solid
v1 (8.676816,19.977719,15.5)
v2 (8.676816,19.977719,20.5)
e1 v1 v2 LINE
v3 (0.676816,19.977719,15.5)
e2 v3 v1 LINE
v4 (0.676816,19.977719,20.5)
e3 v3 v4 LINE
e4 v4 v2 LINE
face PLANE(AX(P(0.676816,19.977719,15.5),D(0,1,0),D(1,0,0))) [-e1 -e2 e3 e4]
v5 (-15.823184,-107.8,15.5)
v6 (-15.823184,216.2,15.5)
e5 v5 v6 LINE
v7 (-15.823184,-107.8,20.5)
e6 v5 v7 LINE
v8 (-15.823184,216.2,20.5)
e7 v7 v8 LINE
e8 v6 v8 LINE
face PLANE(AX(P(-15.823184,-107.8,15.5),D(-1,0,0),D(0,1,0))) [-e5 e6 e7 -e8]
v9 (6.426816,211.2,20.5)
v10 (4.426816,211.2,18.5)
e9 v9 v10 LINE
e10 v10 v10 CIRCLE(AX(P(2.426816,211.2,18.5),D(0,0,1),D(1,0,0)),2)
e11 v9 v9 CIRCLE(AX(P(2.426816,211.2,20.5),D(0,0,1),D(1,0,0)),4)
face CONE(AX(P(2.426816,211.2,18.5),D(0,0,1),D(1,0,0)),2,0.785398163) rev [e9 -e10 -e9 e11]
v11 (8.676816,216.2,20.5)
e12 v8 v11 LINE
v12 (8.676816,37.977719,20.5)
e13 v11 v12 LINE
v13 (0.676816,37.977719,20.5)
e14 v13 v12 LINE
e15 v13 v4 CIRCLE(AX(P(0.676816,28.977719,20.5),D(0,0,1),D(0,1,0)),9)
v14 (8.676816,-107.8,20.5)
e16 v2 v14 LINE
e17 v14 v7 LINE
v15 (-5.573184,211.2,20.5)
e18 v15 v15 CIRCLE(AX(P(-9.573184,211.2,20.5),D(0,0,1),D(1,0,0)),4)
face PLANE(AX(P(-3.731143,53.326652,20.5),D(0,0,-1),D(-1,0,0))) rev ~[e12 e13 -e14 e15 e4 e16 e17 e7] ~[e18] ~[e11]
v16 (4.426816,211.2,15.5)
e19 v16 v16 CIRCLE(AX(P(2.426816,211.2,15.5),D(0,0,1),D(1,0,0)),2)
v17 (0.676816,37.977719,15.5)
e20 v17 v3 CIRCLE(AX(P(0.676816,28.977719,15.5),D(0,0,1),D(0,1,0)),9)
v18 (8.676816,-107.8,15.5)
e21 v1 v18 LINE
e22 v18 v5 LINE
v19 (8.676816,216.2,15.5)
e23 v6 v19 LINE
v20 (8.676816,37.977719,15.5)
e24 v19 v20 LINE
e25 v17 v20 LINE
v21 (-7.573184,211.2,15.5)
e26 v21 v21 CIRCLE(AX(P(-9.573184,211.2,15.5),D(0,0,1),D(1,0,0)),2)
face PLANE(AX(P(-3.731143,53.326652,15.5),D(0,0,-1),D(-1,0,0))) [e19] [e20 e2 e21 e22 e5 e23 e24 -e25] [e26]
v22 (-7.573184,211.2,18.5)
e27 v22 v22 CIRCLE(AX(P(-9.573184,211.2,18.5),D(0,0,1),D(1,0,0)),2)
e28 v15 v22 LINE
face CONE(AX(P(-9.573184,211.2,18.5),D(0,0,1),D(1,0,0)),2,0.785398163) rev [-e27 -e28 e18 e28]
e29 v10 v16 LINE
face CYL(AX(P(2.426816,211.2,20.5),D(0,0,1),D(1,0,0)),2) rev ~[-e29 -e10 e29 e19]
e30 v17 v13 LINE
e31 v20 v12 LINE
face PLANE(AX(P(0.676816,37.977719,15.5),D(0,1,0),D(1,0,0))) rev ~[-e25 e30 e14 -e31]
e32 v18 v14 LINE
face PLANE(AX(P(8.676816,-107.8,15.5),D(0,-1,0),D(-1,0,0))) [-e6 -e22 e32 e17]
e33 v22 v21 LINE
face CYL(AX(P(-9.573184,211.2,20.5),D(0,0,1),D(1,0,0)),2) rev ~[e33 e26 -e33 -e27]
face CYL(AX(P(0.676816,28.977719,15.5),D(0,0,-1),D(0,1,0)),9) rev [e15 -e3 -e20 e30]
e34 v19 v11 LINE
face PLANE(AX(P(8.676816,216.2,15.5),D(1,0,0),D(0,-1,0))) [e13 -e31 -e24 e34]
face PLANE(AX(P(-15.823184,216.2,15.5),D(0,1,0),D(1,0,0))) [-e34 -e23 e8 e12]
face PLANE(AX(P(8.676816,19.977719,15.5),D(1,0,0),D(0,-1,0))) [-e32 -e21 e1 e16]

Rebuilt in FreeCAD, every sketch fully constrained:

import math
import FreeCAD as App
import Part
import Sketcher
from FreeCAD import Vector


def edges_at(feature, points):
    """Names of the edges that pass closest to the given points."""
    edges = feature.Shape.Edges
    near = lambda p: min(range(len(edges)), key=lambda i: edges[i].distToShape(Part.Vertex(*p))[0])
    return sorted({f"Edge{near(p) + 1}" for p in points})

doc = App.newDocument("Part")
params = doc.addObject("Spreadsheet::Sheet", "Params")
for row, (alias, value) in enumerate([
    ("sketch1_radius", "9 mm"),
    ("sketch1_width", "8 mm"),
    ("sketch1_height", "324 mm"),
    ("sketch1_width2", "24.5 mm"),
    ("pad1_length", "5 mm"),
    ("sketch2_diameter", "4 mm"),
    ("chamfer_size", "2 mm"),
], start=1):
    params.set(f"A{row}", alias)
    params.set(f"B{row}", "=" + value)
    params.setAlias(f"B{row}", alias)

body = doc.addObject("PartDesign::Body", "Body")

# Sketch on XY plane
sketch1 = body.newObject("Sketcher::SketchObject", "Sketch")
sketch1.AttachmentSupport = (doc.getObject("XY_Plane"), [""])
sketch1.MapMode = "FlatFace"
sketch1.addGeometry(Part.LineSegment(Vector(9, -108, 0), Vector(9, 20, 0)), False)
sketch1.addGeometry(Part.LineSegment(Vector(9, 20, 0), Vector(1, 20, 0)), False)
sketch1.addGeometry(Part.ArcOfCircle(Part.Circle(Vector(1, 29, 0), Vector(0, 0, 1), 9), math.radians(90), math.radians(270)), False)
sketch1.addGeometry(Part.LineSegment(Vector(1, 38, 0), Vector(9, 38, 0)), False)
sketch1.addGeometry(Part.LineSegment(Vector(9, 38, 0), Vector(9, 216, 0)), False)
sketch1.addGeometry(Part.LineSegment(Vector(9, 216, 0), Vector(-16, 216, 0)), False)
sketch1.addGeometry(Part.LineSegment(Vector(-16, 216, 0), Vector(-16, -108, 0)), False)
sketch1.addGeometry(Part.LineSegment(Vector(-16, -108, 0), Vector(9, -108, 0)), False)
sketch1.addConstraint(Sketcher.Constraint("Coincident", 0, 2, 1, 1))
sketch1.addConstraint(Sketcher.Constraint("Tangent", 1, 2, 2, 2))
sketch1.addConstraint(Sketcher.Constraint("Tangent", 2, 1, 3, 1))
sketch1.addConstraint(Sketcher.Constraint("Coincident", 3, 2, 4, 1))
sketch1.addConstraint(Sketcher.Constraint("Coincident", 4, 2, 5, 1))
sketch1.addConstraint(Sketcher.Constraint("Coincident", 5, 2, 6, 1))
sketch1.addConstraint(Sketcher.Constraint("Coincident", 6, 2, 7, 1))
sketch1.addConstraint(Sketcher.Constraint("Coincident", 7, 2, 0, 1))
sketch1.addConstraint(Sketcher.Constraint("Vertical", 0))
sketch1.addConstraint(Sketcher.Constraint("Horizontal", 1))
sketch1.addConstraint(Sketcher.Constraint("Horizontal", 3))
sketch1.addConstraint(Sketcher.Constraint("Vertical", 4))
sketch1.addConstraint(Sketcher.Constraint("Horizontal", 5))
sketch1.addConstraint(Sketcher.Constraint("Vertical", 6))
sketch1.addConstraint(Sketcher.Constraint("Horizontal", 7))
sketch1.addConstraint(Sketcher.Constraint("Vertical", 0, 2, 3, 2))
sketch1.addConstraint(Sketcher.Constraint("Radius", 2, 9.0))
sketch1.addConstraint(Sketcher.Constraint("DistanceX", 1, 2, 1, 1, 8.0))
sketch1.addConstraint(Sketcher.Constraint("DistanceY", 6, 2, 6, 1, 324.0))
sketch1.addConstraint(Sketcher.Constraint("DistanceX", 5, 2, 5, 1, 24.5))
sketch1.addConstraint(Sketcher.Constraint("DistanceY", -1, 1, 4, 2, 216.2))
sketch1.addConstraint(Sketcher.Constraint("DistanceY", 0, 1, 0, 2, 127.777719))
sketch1.addConstraint(Sketcher.Constraint("DistanceX", -1, 1, 2, 3, 0.676816))
sketch1.setExpression("Constraints[16]", "Params.sketch1_radius")
sketch1.setExpression("Constraints[17]", "Params.sketch1_width")
sketch1.setExpression("Constraints[18]", "Params.sketch1_height")
sketch1.setExpression("Constraints[19]", "Params.sketch1_width2")
pad1 = body.newObject("PartDesign::Pad", "Pad")
pad1.Profile = sketch1
pad1.setExpression("Length", "Params.pad1_length")

# Sketch on XY plane
sketch2 = body.newObject("Sketcher::SketchObject", "Sketch001")
sketch2.AttachmentSupport = (doc.getObject("XY_Plane"), [""])
sketch2.MapMode = "FlatFace"
sketch2.AttachmentOffset = App.Placement(Vector(0, 0, 5), App.Rotation())
sketch2.addGeometry(Part.Circle(Vector(-9.6, 211.2, 0), Vector(0, 0, 1), 2), False)
sketch2.addGeometry(Part.Circle(Vector(2.4, 211.2, 0), Vector(0, 0, 1), 2), False)
sketch2.addConstraint(Sketcher.Constraint("Equal", 0, 1))
sketch2.addConstraint(Sketcher.Constraint("Horizontal", 0, 3, 1, 3))
sketch2.addConstraint(Sketcher.Constraint("Diameter", 0, 4.0))
sketch2.addConstraint(Sketcher.Constraint("DistanceX", 0, 3, 1, 3, 12.0))
sketch2.addConstraint(Sketcher.Constraint("DistanceY", -1, 1, 0, 3, 211.2))
sketch2.addConstraint(Sketcher.Constraint("DistanceX", 0, 3, -1, 1, 9.573184))
sketch2.setExpression("Constraints[2]", "Params.sketch2_diameter")
pocket1 = body.newObject("PartDesign::Pocket", "Pocket")
pocket1.Profile = sketch2
pocket1.Type = "ThroughAll"
doc.recompute()

chamfer = body.newObject("PartDesign::Chamfer", "Chamfer")
chamfer.Base = (pocket1, edges_at(pocket1, [(-11.573, 211.2, 5), (0.427, 211.2, 5)]))
chamfer.setExpression("Size", "Params.chamfer_size")
body2 = doc.addObject("PartDesign::Body", "Body001")
doc.recompute()

body.Placement = App.Placement(Vector(0, 0, 15.5), App.Rotation(Vector(0, 0, 1), 0))
boolean = body2.newObject("PartDesign::Boolean", "Boolean")
boolean.Type = "Fuse"
boolean.addObjects([body])

doc.recompute()
